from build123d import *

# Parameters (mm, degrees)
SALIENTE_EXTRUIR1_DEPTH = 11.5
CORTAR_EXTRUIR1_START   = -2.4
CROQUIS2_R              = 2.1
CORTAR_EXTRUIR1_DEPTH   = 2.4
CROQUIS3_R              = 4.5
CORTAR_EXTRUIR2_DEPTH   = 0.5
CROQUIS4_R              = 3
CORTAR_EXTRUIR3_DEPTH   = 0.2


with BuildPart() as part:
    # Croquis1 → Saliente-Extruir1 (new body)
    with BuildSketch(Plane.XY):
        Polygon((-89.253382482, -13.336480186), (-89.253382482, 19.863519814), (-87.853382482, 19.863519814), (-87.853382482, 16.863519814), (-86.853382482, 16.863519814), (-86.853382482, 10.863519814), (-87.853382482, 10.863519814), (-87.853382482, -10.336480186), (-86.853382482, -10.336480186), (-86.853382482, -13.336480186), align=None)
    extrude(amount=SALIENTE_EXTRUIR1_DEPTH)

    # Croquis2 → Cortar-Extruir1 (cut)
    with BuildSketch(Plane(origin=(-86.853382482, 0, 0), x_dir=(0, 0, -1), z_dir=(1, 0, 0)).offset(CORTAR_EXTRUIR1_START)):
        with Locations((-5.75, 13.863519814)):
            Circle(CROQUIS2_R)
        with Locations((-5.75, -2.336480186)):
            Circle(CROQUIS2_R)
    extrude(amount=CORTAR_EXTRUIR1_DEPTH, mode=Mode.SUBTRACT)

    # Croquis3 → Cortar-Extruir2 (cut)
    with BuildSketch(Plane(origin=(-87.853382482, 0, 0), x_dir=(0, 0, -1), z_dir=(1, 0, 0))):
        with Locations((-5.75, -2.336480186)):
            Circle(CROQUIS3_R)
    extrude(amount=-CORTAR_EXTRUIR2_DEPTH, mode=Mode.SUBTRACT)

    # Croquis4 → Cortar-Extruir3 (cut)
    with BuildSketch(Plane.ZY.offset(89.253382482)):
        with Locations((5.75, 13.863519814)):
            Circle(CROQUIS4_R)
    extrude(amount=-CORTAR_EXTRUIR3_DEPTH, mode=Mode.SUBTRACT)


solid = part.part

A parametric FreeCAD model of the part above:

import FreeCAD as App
import Part
import Sketcher

doc = App.newDocument("Part")
params = doc.addObject("Spreadsheet::Sheet", "Params")
for row, (alias, value) in enumerate([
    ("sketch1_width", "1 mm"),
    ("sketch1_height", "3 mm"),
    ("sketch1_height2", "6 mm"),
    ("sketch1_width2", "2.4 mm"),
    ("sketch1_height3", "33.2 mm"),
    ("pad1_length", "11.5 mm"),
    ("sketch2_diameter", "4.2 mm"),
    ("pocket1_length", "2.4 mm"),
    ("sketch3_diameter", "9 mm"),
    ("pocket2_length", "0.5 mm"),
    ("sketch4_diameter", "6 mm"),
    ("pocket3_length", "0.2 mm"),
], start=1):
    params.set(f"A{row}", alias)
    params.set(f"B{row}", "=" + value)
    params.setAlias(f"B{row}", alias)

body = doc.addObject("PartDesign::Body", "Body")

sketch1 = body.newObject("Sketcher::SketchObject", "Sketch")
sketch1.AttachmentSupport = (doc.getObject("XY_Plane"), [""])
sketch1.MapMode = "FlatFace"
sketch1.addGeometry(Part.LineSegment(App.Vector(-89.3, 19.9, 0), App.Vector(-89.3, -13.3, 0)), False)
sketch1.addGeometry(Part.LineSegment(App.Vector(-89.3, -13.3, 0), App.Vector(-86.9, -13.3, 0)), False)
sketch1.addGeometry(Part.LineSegment(App.Vector(-86.9, -13.3, 0), App.Vector(-86.9, -10.3, 0)), False)
sketch1.addGeometry(Part.LineSegment(App.Vector(-86.9, -10.3, 0), App.Vector(-87.9, -10.3, 0)), False)
sketch1.addGeometry(Part.LineSegment(App.Vector(-87.9, -10.3, 0), App.Vector(-87.9, 10.9, 0)), False)
sketch1.addGeometry(Part.LineSegment(App.Vector(-87.9, 10.9, 0), App.Vector(-86.9, 10.9, 0)), False)
sketch1.addGeometry(Part.LineSegment(App.Vector(-86.9, 10.9, 0), App.Vector(-86.9, 16.9, 0)), False)
sketch1.addGeometry(Part.LineSegment(App.Vector(-86.9, 16.9, 0), App.Vector(-87.9, 16.9, 0)), False)
sketch1.addGeometry(Part.LineSegment(App.Vector(-87.9, 16.9, 0), App.Vector(-87.9, 19.9, 0)), False)
sketch1.addGeometry(Part.LineSegment(App.Vector(-87.9, 19.9, 0), App.Vector(-89.3, 19.9, 0)), False)
sketch1.addConstraint(Sketcher.Constraint("Coincident", 0, 2, 1, 1))
sketch1.addConstraint(Sketcher.Constraint("Coincident", 1, 2, 2, 1))
sketch1.addConstraint(Sketcher.Constraint("Coincident", 2, 2, 3, 1))
sketch1.addConstraint(Sketcher.Constraint("Coincident", 3, 2, 4, 1))
sketch1.addConstraint(Sketcher.Constraint("Coincident", 4, 2, 5, 1))
sketch1.addConstraint(Sketcher.Constraint("Coincident", 5, 2, 6, 1))
sketch1.addConstraint(Sketcher.Constraint("Coincident", 6, 2, 7, 1))
sketch1.addConstraint(Sketcher.Constraint("Coincident", 7, 2, 8, 1))
sketch1.addConstraint(Sketcher.Constraint("Coincident", 8, 2, 9, 1))
sketch1.addConstraint(Sketcher.Constraint("Coincident", 9, 2, 0, 1))
sketch1.addConstraint(Sketcher.Constraint("Vertical", 0))
sketch1.addConstraint(Sketcher.Constraint("Horizontal", 1))
sketch1.addConstraint(Sketcher.Constraint("Vertical", 2))
sketch1.addConstraint(Sketcher.Constraint("Horizontal", 3))
sketch1.addConstraint(Sketcher.Constraint("Vertical", 4))
sketch1.addConstraint(Sketcher.Constraint("Horizontal", 5))
sketch1.addConstraint(Sketcher.Constraint("Vertical", 6))
sketch1.addConstraint(Sketcher.Constraint("Horizontal", 7))
sketch1.addConstraint(Sketcher.Constraint("Vertical", 8))
sketch1.addConstraint(Sketcher.Constraint("Horizontal", 9))
sketch1.addConstraint(Sketcher.Constraint("Vertical", 2, 2, 5, 2))
sketch1.addConstraint(Sketcher.Constraint("Vertical", 4, 2, 7, 2))
sketch1.addConstraint(Sketcher.Constraint("Equal", 2, 8))
sketch1.addConstraint(Sketcher.Constraint("DistanceX", 3, 2, 3, 1, 1.0))
sketch1.addConstraint(Sketcher.Constraint("DistanceY", 2, 1, 2, 2, 3.0))
sketch1.addConstraint(Sketcher.Constraint("DistanceY", 6, 1, 6, 2, 6.0))
sketch1.addConstraint(Sketcher.Constraint("DistanceX", 1, 1, 1, 2, 2.4))
sketch1.addConstraint(Sketcher.Constraint("DistanceY", 0, 2, 0, 1, 33.2))
sketch1.addConstraint(Sketcher.Constraint("DistanceY", 0, 2, -1, 1, 13.33648))
sketch1.addConstraint(Sketcher.Constraint("DistanceX", 0, 2, -1, 1, 89.253382))
sketch1.setExpression("Constraints[23]", "Params.sketch1_width")
sketch1.setExpression("Constraints[24]", "Params.sketch1_height")
sketch1.setExpression("Constraints[25]", "Params.sketch1_height2")
sketch1.setExpression("Constraints[26]", "Params.sketch1_width2")
sketch1.setExpression("Constraints[27]", "Params.sketch1_height3")
pad1 = body.newObject("PartDesign::Pad", "Pad")
pad1.Profile = sketch1
pad1.setExpression("Length", "Params.pad1_length")

sketch2 = body.newObject("Sketcher::SketchObject", "Sketch001")
sketch2.AttachmentSupport = (doc.getObject("YZ_Plane"), [""])
sketch2.MapMode = "FlatFace"
sketch2.AttachmentOffset = App.Placement(App.Vector(0, 0, -89.253382), App.Rotation())
sketch2.addGeometry(Part.Circle(App.Vector(13.9, 5.8, 0), App.Vector(0, 0, 1), 2.1), False)
sketch2.addGeometry(Part.Circle(App.Vector(-2.3, 5.8, 0), App.Vector(0, 0, 1), 2.1), False)
sketch2.addConstraint(Sketcher.Constraint("Equal", 0, 1))
sketch2.addConstraint(Sketcher.Constraint("Horizontal", 0, 3, 1, 3))
sketch2.addConstraint(Sketcher.Constraint("Diameter", 0, 4.2))
sketch2.addConstraint(Sketcher.Constraint("DistanceX", 1, 3, 0, 3, 16.2))
sketch2.addConstraint(Sketcher.Constraint("DistanceY", -1, 1, 0, 3, 5.75))
sketch2.addConstraint(Sketcher.Constraint("DistanceX", -1, 1, 0, 3, 13.86352))
sketch2.setExpression("Constraints[2]", "Params.sketch2_diameter")
pocket1 = body.newObject("PartDesign::Pocket", "Pocket")
pocket1.Profile = sketch2
pocket1.setExpression("Length", "Params.pocket1_length")
pocket1.Reversed = True

sketch3 = body.newObject("Sketcher::SketchObject", "Sketch002")
sketch3.AttachmentSupport = (doc.getObject("YZ_Plane"), [""])
sketch3.MapMode = "FlatFace"
sketch3.AttachmentOffset = App.Placement(App.Vector(0, 0, -87.853382), App.Rotation())
sketch3.addGeometry(Part.Circle(App.Vector(-2.3, 5.8, 0), App.Vector(0, 0, 1), 4.5), False)
sketch3.addConstraint(Sketcher.Constraint("Diameter", 0, 9.0))
sketch3.addConstraint(Sketcher.Constraint("DistanceY", -1, 1, 0, 3, 5.75))
sketch3.addConstraint(Sketcher.Constraint("DistanceX", 0, 3, -1, 1, 2.33648))
sketch3.setExpression("Constraints[0]", "Params.sketch3_diameter")
pocket2 = body.newObject("PartDesign::Pocket", "Pocket001")
pocket2.Profile = sketch3
pocket2.setExpression("Length", "Params.pocket2_length")

sketch4 = body.newObject("Sketcher::SketchObject", "Sketch003")
sketch4.AttachmentSupport = (doc.getObject("YZ_Plane"), [""])
sketch4.MapMode = "FlatFace"
sketch4.AttachmentOffset = App.Placement(App.Vector(0, 0, -89.253382), App.Rotation())
sketch4.addGeometry(Part.Circle(App.Vector(13.9, 5.8, 0), App.Vector(0, 0, 1), 3), False)
sketch4.addConstraint(Sketcher.Constraint("Diameter", 0, 6.0))
sketch4.addConstraint(Sketcher.Constraint("DistanceY", -1, 1, 0, 3, 5.75))
sketch4.addConstraint(Sketcher.Constraint("DistanceX", -1, 1, 0, 3, 13.86352))
sketch4.setExpression("Constraints[0]", "Params.sketch4_diameter")
pocket3 = body.newObject("PartDesign::Pocket", "Pocket002")
pocket3.Profile = sketch4
pocket3.setExpression("Length", "Params.pocket3_length")
pocket3.Reversed = True

doc.recompute()
